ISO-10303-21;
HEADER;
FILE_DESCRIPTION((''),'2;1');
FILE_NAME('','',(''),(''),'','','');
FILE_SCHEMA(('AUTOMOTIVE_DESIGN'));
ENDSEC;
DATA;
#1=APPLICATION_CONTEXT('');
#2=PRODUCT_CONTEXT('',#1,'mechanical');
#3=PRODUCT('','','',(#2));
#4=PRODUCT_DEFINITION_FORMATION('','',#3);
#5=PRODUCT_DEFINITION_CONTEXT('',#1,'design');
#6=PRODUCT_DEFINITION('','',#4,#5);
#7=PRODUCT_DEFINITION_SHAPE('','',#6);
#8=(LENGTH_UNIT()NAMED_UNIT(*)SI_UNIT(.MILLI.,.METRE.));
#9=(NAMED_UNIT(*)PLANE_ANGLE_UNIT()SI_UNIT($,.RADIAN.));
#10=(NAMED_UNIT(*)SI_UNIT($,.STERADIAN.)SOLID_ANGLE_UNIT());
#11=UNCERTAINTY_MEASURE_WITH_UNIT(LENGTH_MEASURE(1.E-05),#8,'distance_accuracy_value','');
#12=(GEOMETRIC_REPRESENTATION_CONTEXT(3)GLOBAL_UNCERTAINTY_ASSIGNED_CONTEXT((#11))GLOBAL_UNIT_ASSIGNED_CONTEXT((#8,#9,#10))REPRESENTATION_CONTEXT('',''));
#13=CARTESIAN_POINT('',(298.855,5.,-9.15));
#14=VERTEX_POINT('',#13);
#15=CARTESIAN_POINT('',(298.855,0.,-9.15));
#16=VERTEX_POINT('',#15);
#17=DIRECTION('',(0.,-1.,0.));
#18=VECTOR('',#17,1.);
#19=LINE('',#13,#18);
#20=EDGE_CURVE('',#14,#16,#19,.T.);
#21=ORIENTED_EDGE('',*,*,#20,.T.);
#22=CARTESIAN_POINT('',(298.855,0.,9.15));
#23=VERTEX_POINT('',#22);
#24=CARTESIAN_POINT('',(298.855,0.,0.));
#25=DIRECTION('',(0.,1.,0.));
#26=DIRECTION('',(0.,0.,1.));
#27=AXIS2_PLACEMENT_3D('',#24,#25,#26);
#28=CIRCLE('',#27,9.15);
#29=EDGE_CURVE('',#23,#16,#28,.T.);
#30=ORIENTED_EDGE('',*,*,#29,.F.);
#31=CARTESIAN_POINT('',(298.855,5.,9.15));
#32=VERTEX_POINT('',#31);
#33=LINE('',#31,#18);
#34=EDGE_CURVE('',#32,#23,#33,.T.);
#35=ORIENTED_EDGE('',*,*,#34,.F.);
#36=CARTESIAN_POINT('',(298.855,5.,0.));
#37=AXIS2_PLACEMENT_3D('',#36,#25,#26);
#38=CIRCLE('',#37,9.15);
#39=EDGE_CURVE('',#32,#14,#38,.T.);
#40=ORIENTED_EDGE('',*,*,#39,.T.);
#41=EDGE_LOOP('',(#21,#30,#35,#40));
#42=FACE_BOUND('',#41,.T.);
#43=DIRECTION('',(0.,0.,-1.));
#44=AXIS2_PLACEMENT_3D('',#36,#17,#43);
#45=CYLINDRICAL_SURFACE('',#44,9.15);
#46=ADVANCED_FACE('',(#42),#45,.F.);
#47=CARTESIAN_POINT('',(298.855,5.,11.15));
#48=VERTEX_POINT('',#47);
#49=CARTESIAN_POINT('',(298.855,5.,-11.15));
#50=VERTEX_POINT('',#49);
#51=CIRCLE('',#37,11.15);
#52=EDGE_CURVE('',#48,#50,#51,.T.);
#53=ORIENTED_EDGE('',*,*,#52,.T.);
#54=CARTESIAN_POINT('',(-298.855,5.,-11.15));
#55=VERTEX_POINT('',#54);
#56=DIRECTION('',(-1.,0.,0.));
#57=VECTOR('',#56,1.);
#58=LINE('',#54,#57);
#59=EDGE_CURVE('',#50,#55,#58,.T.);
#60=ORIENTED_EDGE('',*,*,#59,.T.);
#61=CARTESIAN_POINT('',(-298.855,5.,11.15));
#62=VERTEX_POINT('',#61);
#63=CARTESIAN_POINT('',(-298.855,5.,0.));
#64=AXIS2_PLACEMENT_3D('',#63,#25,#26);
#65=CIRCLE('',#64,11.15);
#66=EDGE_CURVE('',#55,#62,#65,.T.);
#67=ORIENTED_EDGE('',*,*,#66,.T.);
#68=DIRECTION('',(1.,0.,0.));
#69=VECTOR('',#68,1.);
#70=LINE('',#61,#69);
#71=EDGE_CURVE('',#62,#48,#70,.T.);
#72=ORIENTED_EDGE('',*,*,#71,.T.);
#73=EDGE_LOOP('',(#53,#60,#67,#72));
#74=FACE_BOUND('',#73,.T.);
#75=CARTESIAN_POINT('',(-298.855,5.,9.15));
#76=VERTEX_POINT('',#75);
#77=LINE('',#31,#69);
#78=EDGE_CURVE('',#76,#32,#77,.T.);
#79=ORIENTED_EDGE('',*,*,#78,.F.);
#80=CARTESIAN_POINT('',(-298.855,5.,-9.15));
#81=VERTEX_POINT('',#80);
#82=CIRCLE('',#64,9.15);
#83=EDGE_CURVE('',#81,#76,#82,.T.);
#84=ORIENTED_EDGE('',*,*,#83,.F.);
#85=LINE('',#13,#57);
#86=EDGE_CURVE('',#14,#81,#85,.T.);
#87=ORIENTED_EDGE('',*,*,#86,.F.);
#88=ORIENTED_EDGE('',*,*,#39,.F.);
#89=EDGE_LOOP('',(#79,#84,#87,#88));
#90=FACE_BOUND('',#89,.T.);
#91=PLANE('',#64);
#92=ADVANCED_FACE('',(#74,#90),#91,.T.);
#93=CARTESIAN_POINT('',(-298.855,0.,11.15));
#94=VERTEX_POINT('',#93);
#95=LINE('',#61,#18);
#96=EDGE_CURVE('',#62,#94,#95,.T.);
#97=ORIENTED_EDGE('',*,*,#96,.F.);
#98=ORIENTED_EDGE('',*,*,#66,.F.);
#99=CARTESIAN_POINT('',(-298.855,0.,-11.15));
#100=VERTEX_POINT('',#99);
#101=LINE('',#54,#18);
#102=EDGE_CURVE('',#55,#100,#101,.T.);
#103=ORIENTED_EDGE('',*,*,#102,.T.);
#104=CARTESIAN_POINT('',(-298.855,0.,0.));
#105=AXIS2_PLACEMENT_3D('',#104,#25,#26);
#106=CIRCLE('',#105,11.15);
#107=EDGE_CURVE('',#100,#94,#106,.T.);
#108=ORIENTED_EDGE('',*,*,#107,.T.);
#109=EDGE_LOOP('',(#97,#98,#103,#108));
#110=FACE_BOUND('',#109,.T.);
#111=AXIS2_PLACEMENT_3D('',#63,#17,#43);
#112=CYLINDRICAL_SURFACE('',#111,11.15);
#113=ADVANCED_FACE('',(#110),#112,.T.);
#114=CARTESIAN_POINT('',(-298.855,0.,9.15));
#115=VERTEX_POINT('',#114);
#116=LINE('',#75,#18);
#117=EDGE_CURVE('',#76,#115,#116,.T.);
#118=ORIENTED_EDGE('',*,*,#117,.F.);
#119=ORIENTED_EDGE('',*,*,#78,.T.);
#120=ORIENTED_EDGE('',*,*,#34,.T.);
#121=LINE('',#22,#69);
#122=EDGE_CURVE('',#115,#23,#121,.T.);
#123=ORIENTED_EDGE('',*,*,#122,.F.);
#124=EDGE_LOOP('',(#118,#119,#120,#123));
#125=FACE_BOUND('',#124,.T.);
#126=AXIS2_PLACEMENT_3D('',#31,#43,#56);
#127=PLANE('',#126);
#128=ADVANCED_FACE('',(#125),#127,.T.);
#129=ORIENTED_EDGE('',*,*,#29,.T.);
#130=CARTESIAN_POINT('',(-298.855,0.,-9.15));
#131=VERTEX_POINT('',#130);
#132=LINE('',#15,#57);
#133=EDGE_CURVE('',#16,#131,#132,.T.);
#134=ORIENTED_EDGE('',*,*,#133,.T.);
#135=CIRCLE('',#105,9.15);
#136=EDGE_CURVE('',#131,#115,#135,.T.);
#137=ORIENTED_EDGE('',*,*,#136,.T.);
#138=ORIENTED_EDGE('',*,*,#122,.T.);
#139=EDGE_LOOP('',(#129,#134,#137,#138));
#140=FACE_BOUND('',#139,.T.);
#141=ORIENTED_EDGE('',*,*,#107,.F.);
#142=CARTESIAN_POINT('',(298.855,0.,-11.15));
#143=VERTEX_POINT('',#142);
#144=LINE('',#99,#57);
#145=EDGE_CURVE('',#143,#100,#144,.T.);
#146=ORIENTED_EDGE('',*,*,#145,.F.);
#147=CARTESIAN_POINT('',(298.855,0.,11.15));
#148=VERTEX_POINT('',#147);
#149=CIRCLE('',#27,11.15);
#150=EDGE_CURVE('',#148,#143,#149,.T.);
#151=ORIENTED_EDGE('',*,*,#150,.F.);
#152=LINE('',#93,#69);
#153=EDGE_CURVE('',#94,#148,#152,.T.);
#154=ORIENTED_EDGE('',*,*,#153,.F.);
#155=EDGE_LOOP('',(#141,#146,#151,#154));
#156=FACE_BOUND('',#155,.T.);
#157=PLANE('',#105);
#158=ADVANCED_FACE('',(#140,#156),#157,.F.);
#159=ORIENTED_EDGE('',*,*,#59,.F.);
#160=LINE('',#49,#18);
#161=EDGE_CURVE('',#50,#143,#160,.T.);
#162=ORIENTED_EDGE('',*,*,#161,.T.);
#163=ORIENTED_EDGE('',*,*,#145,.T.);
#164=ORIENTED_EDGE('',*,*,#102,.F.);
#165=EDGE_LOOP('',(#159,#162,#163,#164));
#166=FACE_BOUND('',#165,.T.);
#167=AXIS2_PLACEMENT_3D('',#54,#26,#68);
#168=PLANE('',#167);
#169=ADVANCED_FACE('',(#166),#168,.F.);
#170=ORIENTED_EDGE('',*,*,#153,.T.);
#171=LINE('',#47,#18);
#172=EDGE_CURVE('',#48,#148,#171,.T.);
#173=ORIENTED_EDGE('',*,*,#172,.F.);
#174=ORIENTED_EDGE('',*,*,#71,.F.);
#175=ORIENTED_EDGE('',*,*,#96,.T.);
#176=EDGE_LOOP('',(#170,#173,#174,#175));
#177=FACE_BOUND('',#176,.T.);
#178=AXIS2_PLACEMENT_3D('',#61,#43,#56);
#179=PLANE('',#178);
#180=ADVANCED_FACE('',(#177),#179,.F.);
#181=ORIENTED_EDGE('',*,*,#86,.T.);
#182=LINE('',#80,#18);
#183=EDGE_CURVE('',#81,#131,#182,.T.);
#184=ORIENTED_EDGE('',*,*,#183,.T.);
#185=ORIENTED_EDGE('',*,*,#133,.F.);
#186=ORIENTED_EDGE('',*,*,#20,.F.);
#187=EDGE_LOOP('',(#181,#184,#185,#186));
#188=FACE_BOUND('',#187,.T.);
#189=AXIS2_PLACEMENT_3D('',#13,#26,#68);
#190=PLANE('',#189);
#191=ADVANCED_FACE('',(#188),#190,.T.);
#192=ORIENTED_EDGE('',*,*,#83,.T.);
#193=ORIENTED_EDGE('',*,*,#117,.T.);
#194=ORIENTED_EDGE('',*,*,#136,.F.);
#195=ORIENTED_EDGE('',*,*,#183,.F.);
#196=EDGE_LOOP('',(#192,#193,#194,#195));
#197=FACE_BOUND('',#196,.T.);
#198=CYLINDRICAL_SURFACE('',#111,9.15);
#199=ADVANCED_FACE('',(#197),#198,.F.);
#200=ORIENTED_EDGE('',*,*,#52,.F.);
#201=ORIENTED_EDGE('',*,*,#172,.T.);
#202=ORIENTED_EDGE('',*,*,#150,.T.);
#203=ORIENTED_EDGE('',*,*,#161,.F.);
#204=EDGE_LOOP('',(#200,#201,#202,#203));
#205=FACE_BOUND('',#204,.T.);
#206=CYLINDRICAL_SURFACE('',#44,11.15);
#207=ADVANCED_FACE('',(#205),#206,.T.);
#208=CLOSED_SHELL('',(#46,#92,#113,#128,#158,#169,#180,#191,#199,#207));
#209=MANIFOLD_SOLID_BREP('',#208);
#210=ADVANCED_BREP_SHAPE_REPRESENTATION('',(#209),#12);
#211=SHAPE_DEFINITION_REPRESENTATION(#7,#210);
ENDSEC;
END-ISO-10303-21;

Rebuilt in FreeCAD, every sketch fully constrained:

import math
import FreeCAD as App
import Part
import Sketcher
Q = App.Units.Quantity

doc = App.newDocument("Part")
body = doc.addObject("PartDesign::Body", "Body")

# Sketch on XZ plane
sketch1 = doc.addObject("Sketcher::SketchObject", "Sketch")
body.addObject(sketch1)
sketch1.AttachmentSupport = (doc.XZ_Plane, [""])
sketch1.MapMode = "FlatFace"
sketch1.addGeometry([
    Part.LineSegment(App.Vector(299, -11, 0), App.Vector(-299, -11, 0)),  # 0
    Part.ArcOfCircle(Part.Circle(App.Vector(-299, 0, 0), App.Vector(0, 0, 1), 11), math.radians(90), math.radians(270)),  # 1
    Part.LineSegment(App.Vector(-299, 11, 0), App.Vector(299, 11, 0)),  # 2
    Part.ArcOfCircle(Part.Circle(App.Vector(299, 0, 0), App.Vector(0, 0, 1), 11), math.radians(-90), math.radians(90)),  # 3
    Part.LineSegment(App.Vector(299, 9, 0), App.Vector(-299, 9, 0)),  # 4
    Part.ArcOfCircle(Part.Circle(App.Vector(-299, 0, 0), App.Vector(0, 0, 1), 9), math.radians(90), math.radians(270)),  # 5
    Part.LineSegment(App.Vector(-299, -9, 0), App.Vector(299, -9, 0)),  # 6
    Part.ArcOfCircle(Part.Circle(App.Vector(299, 0, 0), App.Vector(0, 0, 1), 9), math.radians(-90), math.radians(90)),  # 7
], False)
sketch1.addConstraint([
    Sketcher.Constraint("Tangent", 0, 2, 1, 2),
    Sketcher.Constraint("Tangent", 1, 1, 2, 1),
    Sketcher.Constraint("Tangent", 2, 2, 3, 2),
    Sketcher.Constraint("Tangent", 3, 1, 0, 1),
    Sketcher.Constraint("Tangent", 4, 2, 5, 1),
    Sketcher.Constraint("Tangent", 5, 2, 6, 1),
    Sketcher.Constraint("Tangent", 6, 2, 7, 1),
    Sketcher.Constraint("Tangent", 7, 2, 4, 1),
    Sketcher.Constraint("Horizontal", 0),
    Sketcher.Constraint("Horizontal", 2),
    Sketcher.Constraint("Horizontal", 4),
    Sketcher.Constraint("Horizontal", 6),
    Sketcher.Constraint("Coincident", 5, 3, 1, 3),
    Sketcher.Constraint("Symmetric", 1, 3, 3, 3, -1, 1),
    Sketcher.Constraint("Vertical", 7, 3, 2, 2),
    Sketcher.Constraint("Radius", 1, Q("11.15 mm")),
    Sketcher.Constraint("Radius", 5, Q("9.15 mm")),
    Sketcher.Constraint("DistanceX", 0, 2, 0, 1, Q("597.71 mm")),
])
pad1 = doc.addObject("PartDesign::Pad", "Pad")
body.addObject(pad1)
pad1.Profile = sketch1
pad1.Length = 5
pad1.Reversed = True

doc.recompute()
